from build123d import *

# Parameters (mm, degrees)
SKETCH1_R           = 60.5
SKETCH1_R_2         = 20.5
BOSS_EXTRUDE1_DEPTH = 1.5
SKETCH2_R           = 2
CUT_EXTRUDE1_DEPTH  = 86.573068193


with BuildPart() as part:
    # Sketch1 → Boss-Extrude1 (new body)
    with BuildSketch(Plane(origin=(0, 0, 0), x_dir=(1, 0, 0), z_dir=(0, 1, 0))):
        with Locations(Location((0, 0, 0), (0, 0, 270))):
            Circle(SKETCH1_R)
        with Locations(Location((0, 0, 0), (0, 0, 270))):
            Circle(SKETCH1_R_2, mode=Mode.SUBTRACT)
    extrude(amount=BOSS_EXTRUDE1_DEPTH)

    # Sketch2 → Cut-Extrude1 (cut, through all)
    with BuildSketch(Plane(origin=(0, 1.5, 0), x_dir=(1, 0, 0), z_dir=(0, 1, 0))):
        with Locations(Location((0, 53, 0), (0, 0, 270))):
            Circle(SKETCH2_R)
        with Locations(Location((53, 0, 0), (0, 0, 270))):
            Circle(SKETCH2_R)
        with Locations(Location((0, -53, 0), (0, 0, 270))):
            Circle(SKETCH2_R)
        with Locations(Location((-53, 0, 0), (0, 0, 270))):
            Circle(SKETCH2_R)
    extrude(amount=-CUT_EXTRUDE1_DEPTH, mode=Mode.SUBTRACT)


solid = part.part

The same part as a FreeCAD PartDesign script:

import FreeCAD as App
import Part
import Sketcher

V = App.Vector
Q = App.Units.Quantity

doc = App.newDocument("Part")
body = doc.addObject("PartDesign::Body", "Body")

# Sketch on XZ plane
sketch1 = doc.addObject("Sketcher::SketchObject", "Sketch")
body.addObject(sketch1)
sketch1.AttachmentSupport = (doc.XZ_Plane, [""])
sketch1.MapMode = "FlatFace"
sketch1.addGeometry([
    Part.Circle(V(0, 0, 0), V(0, 0, 1), 60),
    Part.Circle(V(0, 0, 0), V(0, 0, 1), 20),
], False)
sketch1.addConstraint([
    Sketcher.Constraint("Coincident", 0, 3, -1, 1),
    Sketcher.Constraint("Coincident", 1, 3, -1, 1),
    Sketcher.Constraint("Diameter", 0, Q("121 mm")),
    Sketcher.Constraint("Diameter", 1, Q("41 mm")),
])
pad1 = doc.addObject("PartDesign::Pad", "Pad")
body.addObject(pad1)
pad1.Profile = sketch1
pad1.Length = 1.5
pad1.Reversed = True

# Sketch on XZ plane
sketch2 = doc.addObject("Sketcher::SketchObject", "Sketch001")
body.addObject(sketch2)
sketch2.AttachmentSupport = (doc.XZ_Plane, [""])
sketch2.MapMode = "FlatFace"
sketch2.AttachmentOffset = App.Placement(V(0, 0, -1.5), App.Rotation())
sketch2.addGeometry([
    Part.Circle(V(0, -53, 0), V(0, 0, 1), 2),
    Part.Circle(V(53, 0, 0), V(0, 0, 1), 2),
    Part.Circle(V(0, 53, 0), V(0, 0, 1), 2),
    Part.Circle(V(-53, 0, 0), V(0, 0, 1), 2),
], False)
sketch2.addConstraint([
    Sketcher.Constraint("Equal", 0, 1),
    Sketcher.Constraint("Equal", 1, 2),
    Sketcher.Constraint("Equal", 2, 3),
    Sketcher.Constraint("Symmetric", 0, 3, 2, 3, -1, 1),
    Sketcher.Constraint("Symmetric", 1, 3, 3, 3, -1, 1),
    Sketcher.Constraint("PointOnObject", 0, 3, -2),
    Sketcher.Constraint("PointOnObject", 1, 3, -1),
    Sketcher.Constraint("Diameter", 0, Q("4 mm")),
    Sketcher.Constraint("DistanceY", 0, 3, -1, 1, Q("53 mm")),
    Sketcher.Constraint("DistanceX", -1, 1, 1, 3, Q("53 mm")),
])
pocket1 = doc.addObject("PartDesign::Pocket", "Pocket")
body.addObject(pocket1)
pocket1.Profile = sketch2
pocket1.Type = "ThroughAll"
pocket1.Reversed = True

doc.recompute()
